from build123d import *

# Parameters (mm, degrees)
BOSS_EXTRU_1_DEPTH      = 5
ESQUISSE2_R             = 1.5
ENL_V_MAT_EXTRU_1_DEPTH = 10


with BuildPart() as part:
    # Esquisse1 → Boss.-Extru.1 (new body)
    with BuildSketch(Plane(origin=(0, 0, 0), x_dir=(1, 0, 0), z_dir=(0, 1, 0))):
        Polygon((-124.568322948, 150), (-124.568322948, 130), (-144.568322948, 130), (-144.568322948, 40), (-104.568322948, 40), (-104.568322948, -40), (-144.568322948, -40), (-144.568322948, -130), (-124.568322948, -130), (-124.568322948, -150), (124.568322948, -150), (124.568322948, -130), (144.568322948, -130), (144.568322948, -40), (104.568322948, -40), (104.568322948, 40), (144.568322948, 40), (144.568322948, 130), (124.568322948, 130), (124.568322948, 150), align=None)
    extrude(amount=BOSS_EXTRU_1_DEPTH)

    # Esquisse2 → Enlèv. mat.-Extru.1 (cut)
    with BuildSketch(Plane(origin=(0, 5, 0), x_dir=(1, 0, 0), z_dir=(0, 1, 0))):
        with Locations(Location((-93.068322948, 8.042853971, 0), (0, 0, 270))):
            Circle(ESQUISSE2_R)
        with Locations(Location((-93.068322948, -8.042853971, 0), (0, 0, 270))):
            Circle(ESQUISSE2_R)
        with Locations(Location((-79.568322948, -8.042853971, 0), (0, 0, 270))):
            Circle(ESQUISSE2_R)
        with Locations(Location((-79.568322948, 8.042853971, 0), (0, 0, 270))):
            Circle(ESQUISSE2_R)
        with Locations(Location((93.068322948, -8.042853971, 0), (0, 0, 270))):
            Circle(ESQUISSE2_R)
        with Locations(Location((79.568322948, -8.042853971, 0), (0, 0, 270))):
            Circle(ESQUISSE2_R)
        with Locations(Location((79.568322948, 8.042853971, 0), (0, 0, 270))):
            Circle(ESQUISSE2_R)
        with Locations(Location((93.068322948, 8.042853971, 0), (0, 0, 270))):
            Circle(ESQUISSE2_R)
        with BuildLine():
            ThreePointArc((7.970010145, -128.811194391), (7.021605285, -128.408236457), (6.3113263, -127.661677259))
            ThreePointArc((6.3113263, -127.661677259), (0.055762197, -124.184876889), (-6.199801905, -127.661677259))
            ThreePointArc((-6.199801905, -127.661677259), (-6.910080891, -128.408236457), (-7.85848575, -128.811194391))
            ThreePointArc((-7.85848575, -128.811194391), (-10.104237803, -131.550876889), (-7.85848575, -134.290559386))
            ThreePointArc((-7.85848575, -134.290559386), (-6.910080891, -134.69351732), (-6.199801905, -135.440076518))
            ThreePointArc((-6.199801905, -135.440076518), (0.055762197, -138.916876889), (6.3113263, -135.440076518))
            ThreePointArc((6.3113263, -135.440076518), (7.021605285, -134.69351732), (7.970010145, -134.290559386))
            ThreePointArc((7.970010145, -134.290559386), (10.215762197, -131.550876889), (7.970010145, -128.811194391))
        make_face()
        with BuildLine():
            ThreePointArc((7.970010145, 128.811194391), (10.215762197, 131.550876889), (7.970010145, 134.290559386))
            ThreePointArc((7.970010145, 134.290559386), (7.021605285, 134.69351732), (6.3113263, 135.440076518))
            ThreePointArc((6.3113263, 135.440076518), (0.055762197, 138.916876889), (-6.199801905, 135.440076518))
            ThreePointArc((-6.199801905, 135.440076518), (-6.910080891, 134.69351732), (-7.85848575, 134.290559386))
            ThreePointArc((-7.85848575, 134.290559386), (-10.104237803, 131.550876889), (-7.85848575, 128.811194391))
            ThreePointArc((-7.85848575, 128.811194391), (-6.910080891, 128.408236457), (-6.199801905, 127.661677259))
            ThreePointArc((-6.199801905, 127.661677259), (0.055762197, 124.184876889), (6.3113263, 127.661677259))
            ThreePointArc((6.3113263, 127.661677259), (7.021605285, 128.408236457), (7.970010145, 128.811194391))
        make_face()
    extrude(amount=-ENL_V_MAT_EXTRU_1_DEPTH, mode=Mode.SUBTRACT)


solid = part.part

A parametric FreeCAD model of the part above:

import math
import FreeCAD as App
import Part
import Sketcher


def add_polygon(sketch, points):
    """Adds a closed chain of lines whose ends are joined by coincident constraints."""
    first, n = sketch.GeometryCount, len(points)
    for a, b in zip(points, points[1:] + points[:1]):
        sketch.addGeometry(Part.LineSegment(App.Vector(*a, 0), App.Vector(*b, 0)), False)
    for i in range(n):
        sketch.addConstraint(Sketcher.Constraint("Coincident", first + i, 2, first + (i + 1) % n, 1))

doc = App.newDocument("Part")
body = doc.addObject("PartDesign::Body", "Body")

# Sketch on XZ plane
sketch1 = body.newObject("Sketcher::SketchObject", "Sketch")
sketch1.AttachmentSupport = (doc.getObject("XZ_Plane"), [""])
sketch1.MapMode = "FlatFace"
add_polygon(sketch1, [(-124.568323, -150), (-124.568323, -130), (-144.568323, -130), (-144.568323, -40), (-104.568323, -40), (-104.568323, 40), (-144.568323, 40), (-144.568323, 130), (-124.568323, 130), (-124.568323, 150), (124.568323, 150), (124.568323, 130), (144.568323, 130), (144.568323, 40), (104.568323, 40), (104.568323, -40), (144.568323, -40), (144.568323, -130), (124.568323, -130), (124.568323, -150)])  # lines 0-19
sketch1.addConstraint(Sketcher.Constraint("Vertical", 0))
sketch1.addConstraint(Sketcher.Constraint("Horizontal", 1))
sketch1.addConstraint(Sketcher.Constraint("Vertical", 2))
sketch1.addConstraint(Sketcher.Constraint("Horizontal", 3))
sketch1.addConstraint(Sketcher.Constraint("Vertical", 4))
sketch1.addConstraint(Sketcher.Constraint("Horizontal", 5))
sketch1.addConstraint(Sketcher.Constraint("Vertical", 6))
sketch1.addConstraint(Sketcher.Constraint("Horizontal", 7))
sketch1.addConstraint(Sketcher.Constraint("Vertical", 8))
sketch1.addConstraint(Sketcher.Constraint("Horizontal", 9))
sketch1.addConstraint(Sketcher.Constraint("Vertical", 10))
sketch1.addConstraint(Sketcher.Constraint("Horizontal", 11))
sketch1.addConstraint(Sketcher.Constraint("Vertical", 12))
sketch1.addConstraint(Sketcher.Constraint("Horizontal", 13))
sketch1.addConstraint(Sketcher.Constraint("Vertical", 14))
sketch1.addConstraint(Sketcher.Constraint("Horizontal", 15))
sketch1.addConstraint(Sketcher.Constraint("Vertical", 16))
sketch1.addConstraint(Sketcher.Constraint("Horizontal", 17))
sketch1.addConstraint(Sketcher.Constraint("Vertical", 18))
sketch1.addConstraint(Sketcher.Constraint("Horizontal", 19))
sketch1.addConstraint(Sketcher.Constraint("Symmetric", 0, 2, 10, 2, -1, 1))
sketch1.addConstraint(Sketcher.Constraint("Symmetric", 2, 2, 12, 2, -1, 1))
sketch1.addConstraint(Sketcher.Constraint("Symmetric", 4, 2, 14, 2, -1, 1))
sketch1.addConstraint(Sketcher.Constraint("Symmetric", 6, 2, 16, 2, -1, 1))
sketch1.addConstraint(Sketcher.Constraint("Symmetric", 8, 2, 18, 2, -1, 1))
sketch1.addConstraint(Sketcher.Constraint("Symmetric", 7, 2, 10, 2, -2))
sketch1.addConstraint(Sketcher.Constraint("Symmetric", 5, 2, 12, 2, -2))
sketch1.addConstraint(Sketcher.Constraint("Equal", 17, 0))
sketch1.addConstraint(Sketcher.Constraint("DistanceX", 1, 2, 1, 1, 20.0))
sketch1.addConstraint(Sketcher.Constraint("DistanceX", 3, 1, 3, 2, 40.0))
sketch1.addConstraint(Sketcher.Constraint("DistanceY", 2, 1, 2, 2, 90.0))
sketch1.addConstraint(Sketcher.Constraint("DistanceY", 4, 1, 4, 2, 80.0))
sketch1.addConstraint(Sketcher.Constraint("DistanceX", 9, 1, 9, 2, 249.136646))
pad1 = body.newObject("PartDesign::Pad", "Pad")
pad1.Profile = sketch1
pad1.Length = 5
pad1.Reversed = True

# Sketch on XZ plane
sketch2 = body.newObject("Sketcher::SketchObject", "Sketch001")
sketch2.AttachmentSupport = (doc.getObject("XZ_Plane"), [""])
sketch2.MapMode = "FlatFace"
sketch2.AttachmentOffset = App.Placement(App.Vector(0, 0, -5), App.Rotation())
sketch2.addGeometry(Part.Circle(App.Vector(-93.068323, -8.042854, 0), App.Vector(0, 0, 1), 1.5), False)
sketch2.addGeometry(Part.Circle(App.Vector(-93.068323, 8.042854, 0), App.Vector(0, 0, 1), 1.5), False)
sketch2.addGeometry(Part.Circle(App.Vector(-79.568323, 8.042854, 0), App.Vector(0, 0, 1), 1.5), False)
sketch2.addGeometry(Part.Circle(App.Vector(-79.568323, -8.042854, 0), App.Vector(0, 0, 1), 1.5), False)
sketch2.addGeometry(Part.Circle(App.Vector(93.068323, 8.042854, 0), App.Vector(0, 0, 1), 1.5), False)
sketch2.addGeometry(Part.Circle(App.Vector(79.568323, 8.042854, 0), App.Vector(0, 0, 1), 1.5), False)
sketch2.addGeometry(Part.Circle(App.Vector(79.568323, -8.042854, 0), App.Vector(0, 0, 1), 1.5), False)
sketch2.addGeometry(Part.Circle(App.Vector(93.068323, -8.042854, 0), App.Vector(0, 0, 1), 1.5), False)
sketch2.addGeometry(Part.ArcOfCircle(Part.Circle(App.Vector(8.468417, 126.320574, 0), App.Vector(0, 0, 1), 2.54), math.radians(101.316195), math.radians(148.130021)), False)
sketch2.addGeometry(Part.ArcOfCircle(Part.Circle(App.Vector(0.055762, 131.550877, 0), App.Vector(0, 0, 1), 7.366), math.radians(-148.130021), math.radians(-31.869979)), False)
sketch2.addGeometry(Part.ArcOfCircle(Part.Circle(App.Vector(-8.356893, 126.320574, 0), App.Vector(0, 0, 1), 2.54), math.radians(31.869979), math.radians(78.683805)), False)
sketch2.addGeometry(Part.ArcOfCircle(Part.Circle(App.Vector(-7.310238, 131.550877, 0), App.Vector(0, 0, 1), 2.794), math.radians(101.316195), math.radians(258.683805)), False)
sketch2.addGeometry(Part.ArcOfCircle(Part.Circle(App.Vector(-8.356893, 136.78118, 0), App.Vector(0, 0, 1), 2.54), math.radians(-78.683805), math.radians(-31.869979)), False)
sketch2.addGeometry(Part.ArcOfCircle(Part.Circle(App.Vector(0.055762, 131.550877, 0), App.Vector(0, 0, 1), 7.366), math.radians(31.869979), math.radians(148.130021)), False)
sketch2.addGeometry(Part.ArcOfCircle(Part.Circle(App.Vector(8.468417, 136.78118, 0), App.Vector(0, 0, 1), 2.54), math.radians(-148.130021), math.radians(-101.316195)), False)
sketch2.addGeometry(Part.ArcOfCircle(Part.Circle(App.Vector(7.421762, 131.550877, 0), App.Vector(0, 0, 1), 2.794), math.radians(-78.683805), math.radians(78.683805)), False)
sketch2.addGeometry(Part.ArcOfCircle(Part.Circle(App.Vector(7.421762, -131.550877, 0), App.Vector(0, 0, 1), 2.794), math.radians(-78.683805), math.radians(78.683805)), False)
sketch2.addGeometry(Part.ArcOfCircle(Part.Circle(App.Vector(8.468417, -136.78118, 0), App.Vector(0, 0, 1), 2.54), math.radians(101.316195), math.radians(148.130021)), False)
sketch2.addGeometry(Part.ArcOfCircle(Part.Circle(App.Vector(0.055762, -131.550877, 0), App.Vector(0, 0, 1), 7.366), math.radians(-148.130021), math.radians(-31.869979)), False)
sketch2.addGeometry(Part.ArcOfCircle(Part.Circle(App.Vector(-8.356893, -136.78118, 0), App.Vector(0, 0, 1), 2.54), math.radians(31.869979), math.radians(78.683805)), False)
sketch2.addGeometry(Part.ArcOfCircle(Part.Circle(App.Vector(-7.310238, -131.550877, 0), App.Vector(0, 0, 1), 2.794), math.radians(101.316195), math.radians(258.683805)), False)
sketch2.addGeometry(Part.ArcOfCircle(Part.Circle(App.Vector(-8.356893, -126.320574, 0), App.Vector(0, 0, 1), 2.54), math.radians(-78.683805), math.radians(-31.869979)), False)
sketch2.addGeometry(Part.ArcOfCircle(Part.Circle(App.Vector(0.055762, -131.550877, 0), App.Vector(0, 0, 1), 7.366), math.radians(31.869979), math.radians(148.130021)), False)
sketch2.addGeometry(Part.ArcOfCircle(Part.Circle(App.Vector(8.468417, -126.320574, 0), App.Vector(0, 0, 1), 2.54), math.radians(-148.130021), math.radians(-101.316195)), False)
sketch2.addConstraint(Sketcher.Constraint("Tangent", 8, 2, 9, 2))
sketch2.addConstraint(Sketcher.Constraint("Tangent", 9, 1, 10, 1))
sketch2.addConstraint(Sketcher.Constraint("Tangent", 10, 2, 11, 2))
sketch2.addConstraint(Sketcher.Constraint("Tangent", 11, 1, 12, 1))
sketch2.addConstraint(Sketcher.Constraint("Tangent", 12, 2, 13, 2))
sketch2.addConstraint(Sketcher.Constraint("Tangent", 13, 1, 14, 1))
sketch2.addConstraint(Sketcher.Constraint("Tangent", 14, 2, 15, 2))
sketch2.addConstraint(Sketcher.Constraint("Tangent", 15, 1, 8, 1))
sketch2.addConstraint(Sketcher.Constraint("Tangent", 16, 1, 17, 1))
sketch2.addConstraint(Sketcher.Constraint("Tangent", 17, 2, 18, 2))
sketch2.addConstraint(Sketcher.Constraint("Tangent", 18, 1, 19, 1))
sketch2.addConstraint(Sketcher.Constraint("Tangent", 19, 2, 20, 2))
sketch2.addConstraint(Sketcher.Constraint("Tangent", 20, 1, 21, 1))
sketch2.addConstraint(Sketcher.Constraint("Tangent", 21, 2, 22, 2))
sketch2.addConstraint(Sketcher.Constraint("Tangent", 22, 1, 23, 1))
sketch2.addConstraint(Sketcher.Constraint("Tangent", 23, 2, 16, 2))
sketch2.addConstraint(Sketcher.Constraint("Coincident", 13, 3, 9, 3))
sketch2.addConstraint(Sketcher.Constraint("Coincident", 22, 3, 18, 3))
sketch2.addConstraint(Sketcher.Constraint("Equal", 0, 1))
sketch2.addConstraint(Sketcher.Constraint("Equal", 1, 2))
sketch2.addConstraint(Sketcher.Constraint("Equal", 2, 3))
sketch2.addConstraint(Sketcher.Constraint("Equal", 3, 4))
sketch2.addConstraint(Sketcher.Constraint("Equal", 4, 5))
sketch2.addConstraint(Sketcher.Constraint("Equal", 5, 6))
sketch2.addConstraint(Sketcher.Constraint("Equal", 6, 7))
sketch2.addConstraint(Sketcher.Constraint("Equal", 8, 10))
sketch2.addConstraint(Sketcher.Constraint("Equal", 10, 12))
sketch2.addConstraint(Sketcher.Constraint("Equal", 9, 13))
sketch2.addConstraint(Sketcher.Constraint("Equal", 12, 14))
sketch2.addConstraint(Sketcher.Constraint("Equal", 11, 15))
sketch2.addConstraint(Sketcher.Constraint("Equal", 15, 16))
sketch2.addConstraint(Sketcher.Constraint("Equal", 14, 17))
sketch2.addConstraint(Sketcher.Constraint("Equal", 13, 18))
sketch2.addConstraint(Sketcher.Constraint("Equal", 17, 19))
sketch2.addConstraint(Sketcher.Constraint("Equal", 16, 20))
sketch2.addConstraint(Sketcher.Constraint("Equal", 19, 21))
sketch2.addConstraint(Sketcher.Constraint("Equal", 18, 22))
sketch2.addConstraint(Sketcher.Constraint("Equal", 21, 23))
sketch2.addConstraint(Sketcher.Constraint("Symmetric", 0, 3, 4, 3, -1, 1))
sketch2.addConstraint(Sketcher.Constraint("Symmetric", 3, 3, 5, 3, -1, 1))
sketch2.addConstraint(Sketcher.Constraint("Symmetric", 2, 3, 6, 3, -1, 1))
sketch2.addConstraint(Sketcher.Constraint("Symmetric", 1, 3, 7, 3, -1, 1))
sketch2.addConstraint(Sketcher.Constraint("Symmetric", 1, 3, 4, 3, -2))
sketch2.addConstraint(Sketcher.Constraint("Symmetric", 2, 3, 5, 3, -2))
sketch2.addConstraint(Sketcher.Constraint("Symmetric", 15, 3, 16, 3, -1))
sketch2.addConstraint(Sketcher.Constraint("Symmetric", 9, 3, 18, 3, -1))
sketch2.addConstraint(Sketcher.Constraint("Symmetric", 11, 3, 20, 3, -1))
sketch2.addConstraint(Sketcher.Constraint("Horizontal", 1, 3, 2, 3))
sketch2.addConstraint(Sketcher.Constraint("Horizontal", 8, 3, 10, 3))
sketch2.addConstraint(Sketcher.Constraint("Horizontal", 9, 3, 11, 3))
sketch2.addConstraint(Sketcher.Constraint("Horizontal", 12, 3, 14, 3))
sketch2.addConstraint(Sketcher.Constraint("Diameter", 0, 3.0))
sketch2.addConstraint(Sketcher.Constraint("Radius", 8, 2.54))
sketch2.addConstraint(Sketcher.Constraint("Radius", 9, 7.366))
sketch2.addConstraint(Sketcher.Constraint("Radius", 11, 2.794))
sketch2.addConstraint(Sketcher.Constraint("DistanceX", 1, 3, 2, 3, 13.5))
sketch2.addConstraint(Sketcher.Constraint("DistanceX", 11, 3, 9, 3, 7.366))
sketch2.addConstraint(Sketcher.Constraint("DistanceX", 9, 1, -1, 1, 6.199802))
sketch2.addConstraint(Sketcher.Constraint("DistanceY", -1, 1, 12, 3, 136.78118))
sketch2.addConstraint(Sketcher.Constraint("DistanceY", 5, 3, 8, 3, 118.27772))
sketch2.addConstraint(Sketcher.Constraint("DistanceX", 2, 3, 8, 3, 88.03674))
pocket1 = body.newObject("PartDesign::Pocket", "Pocket")
pocket1.Profile = sketch2
pocket1.Length = 10
pocket1.Reversed = True

doc.recompute()
